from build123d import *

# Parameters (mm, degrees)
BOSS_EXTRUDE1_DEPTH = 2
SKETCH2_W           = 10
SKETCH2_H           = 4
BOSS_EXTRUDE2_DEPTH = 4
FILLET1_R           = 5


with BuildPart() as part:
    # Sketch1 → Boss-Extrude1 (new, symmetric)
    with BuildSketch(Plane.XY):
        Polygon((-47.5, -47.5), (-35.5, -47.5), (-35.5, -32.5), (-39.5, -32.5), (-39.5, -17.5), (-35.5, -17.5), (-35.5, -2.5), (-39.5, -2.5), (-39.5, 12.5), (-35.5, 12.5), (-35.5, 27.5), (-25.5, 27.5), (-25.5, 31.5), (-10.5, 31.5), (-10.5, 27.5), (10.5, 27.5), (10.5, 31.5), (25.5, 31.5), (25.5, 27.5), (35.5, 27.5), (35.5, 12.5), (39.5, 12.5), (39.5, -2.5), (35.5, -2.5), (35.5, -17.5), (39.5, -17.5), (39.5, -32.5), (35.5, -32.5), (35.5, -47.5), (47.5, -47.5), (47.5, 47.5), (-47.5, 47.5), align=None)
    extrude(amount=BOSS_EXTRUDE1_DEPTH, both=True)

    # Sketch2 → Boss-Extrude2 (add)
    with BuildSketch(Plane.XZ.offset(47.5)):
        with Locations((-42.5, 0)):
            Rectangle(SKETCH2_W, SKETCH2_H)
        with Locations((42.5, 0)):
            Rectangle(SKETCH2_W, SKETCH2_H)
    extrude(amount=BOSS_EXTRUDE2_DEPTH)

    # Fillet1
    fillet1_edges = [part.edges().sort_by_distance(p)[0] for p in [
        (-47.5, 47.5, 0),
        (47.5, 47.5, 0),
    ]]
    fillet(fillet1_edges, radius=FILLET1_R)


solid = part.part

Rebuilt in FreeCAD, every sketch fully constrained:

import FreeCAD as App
import Part
import Sketcher
from FreeCAD import Vector


def edges_at(feature, points):
    """Names of the edges that pass closest to the given points."""
    edges = feature.Shape.Edges
    near = lambda p: min(range(len(edges)), key=lambda i: edges[i].distToShape(Part.Vertex(*p))[0])
    return sorted({f"Edge{near(p) + 1}" for p in points})

doc = App.newDocument("Part")
body = doc.addObject("PartDesign::Body", "Body")

sketch1 = body.newObject("Sketcher::SketchObject", "Sketch")
sketch1.AttachmentSupport = (doc.getObject("XY_Plane"), [""])
sketch1.MapMode = "FlatFace"
sketch1.addGeometry([
    Part.LineSegment(Vector(-47.5, -47.5, 0), Vector(-35.5, -47.5, 0)),
    Part.LineSegment(Vector(-35.5, -47.5, 0), Vector(-35.5, -32.5, 0)),
    Part.LineSegment(Vector(-35.5, -32.5, 0), Vector(-39.5, -32.5, 0)),
    Part.LineSegment(Vector(-39.5, -32.5, 0), Vector(-39.5, -17.5, 0)),
    Part.LineSegment(Vector(-39.5, -17.5, 0), Vector(-35.5, -17.5, 0)),
    Part.LineSegment(Vector(-35.5, -17.5, 0), Vector(-35.5, -2.5, 0)),
    Part.LineSegment(Vector(-35.5, -2.5, 0), Vector(-39.5, -2.5, 0)),
    Part.LineSegment(Vector(-39.5, -2.5, 0), Vector(-39.5, 12.5, 0)),
    Part.LineSegment(Vector(-39.5, 12.5, 0), Vector(-35.5, 12.5, 0)),
    Part.LineSegment(Vector(-35.5, 12.5, 0), Vector(-35.5, 27.5, 0)),
    Part.LineSegment(Vector(-35.5, 27.5, 0), Vector(-25.5, 27.5, 0)),
    Part.LineSegment(Vector(-25.5, 27.5, 0), Vector(-25.5, 31.5, 0)),
    Part.LineSegment(Vector(-25.5, 31.5, 0), Vector(-10.5, 31.5, 0)),
    Part.LineSegment(Vector(-10.5, 31.5, 0), Vector(-10.5, 27.5, 0)),
    Part.LineSegment(Vector(-10.5, 27.5, 0), Vector(10.5, 27.5, 0)),
    Part.LineSegment(Vector(10.5, 27.5, 0), Vector(10.5, 31.5, 0)),
    Part.LineSegment(Vector(10.5, 31.5, 0), Vector(25.5, 31.5, 0)),
    Part.LineSegment(Vector(25.5, 31.5, 0), Vector(25.5, 27.5, 0)),
    Part.LineSegment(Vector(25.5, 27.5, 0), Vector(35.5, 27.5, 0)),
    Part.LineSegment(Vector(35.5, 27.5, 0), Vector(35.5, 12.5, 0)),
    Part.LineSegment(Vector(35.5, 12.5, 0), Vector(39.5, 12.5, 0)),
    Part.LineSegment(Vector(39.5, 12.5, 0), Vector(39.5, -2.5, 0)),
    Part.LineSegment(Vector(39.5, -2.5, 0), Vector(35.5, -2.5, 0)),
    Part.LineSegment(Vector(35.5, -2.5, 0), Vector(35.5, -17.5, 0)),
    Part.LineSegment(Vector(35.5, -17.5, 0), Vector(39.5, -17.5, 0)),
    Part.LineSegment(Vector(39.5, -17.5, 0), Vector(39.5, -32.5, 0)),
    Part.LineSegment(Vector(39.5, -32.5, 0), Vector(35.5, -32.5, 0)),
    Part.LineSegment(Vector(35.5, -32.5, 0), Vector(35.5, -47.5, 0)),
    Part.LineSegment(Vector(35.5, -47.5, 0), Vector(47.5, -47.5, 0)),
    Part.LineSegment(Vector(47.5, -47.5, 0), Vector(47.5, 47.5, 0)),
    Part.LineSegment(Vector(47.5, 47.5, 0), Vector(-47.5, 47.5, 0)),
    Part.LineSegment(Vector(-47.5, 47.5, 0), Vector(-47.5, -47.5, 0)),
], False)
sketch1.addConstraint([
    Sketcher.Constraint("Coincident", 0, 2, 1, 1),
    Sketcher.Constraint("Coincident", 1, 2, 2, 1),
    Sketcher.Constraint("Coincident", 2, 2, 3, 1),
    Sketcher.Constraint("Coincident", 3, 2, 4, 1),
    Sketcher.Constraint("Coincident", 4, 2, 5, 1),
    Sketcher.Constraint("Coincident", 5, 2, 6, 1),
    Sketcher.Constraint("Coincident", 6, 2, 7, 1),
    Sketcher.Constraint("Coincident", 7, 2, 8, 1),
    Sketcher.Constraint("Coincident", 8, 2, 9, 1),
    Sketcher.Constraint("Coincident", 9, 2, 10, 1),
    Sketcher.Constraint("Coincident", 10, 2, 11, 1),
    Sketcher.Constraint("Coincident", 11, 2, 12, 1),
    Sketcher.Constraint("Coincident", 12, 2, 13, 1),
    Sketcher.Constraint("Coincident", 13, 2, 14, 1),
    Sketcher.Constraint("Coincident", 14, 2, 15, 1),
    Sketcher.Constraint("Coincident", 15, 2, 16, 1),
    Sketcher.Constraint("Coincident", 16, 2, 17, 1),
    Sketcher.Constraint("Coincident", 17, 2, 18, 1),
    Sketcher.Constraint("Coincident", 18, 2, 19, 1),
    Sketcher.Constraint("Coincident", 19, 2, 20, 1),
    Sketcher.Constraint("Coincident", 20, 2, 21, 1),
    Sketcher.Constraint("Coincident", 21, 2, 22, 1),
    Sketcher.Constraint("Coincident", 22, 2, 23, 1),
    Sketcher.Constraint("Coincident", 23, 2, 24, 1),
    Sketcher.Constraint("Coincident", 24, 2, 25, 1),
    Sketcher.Constraint("Coincident", 25, 2, 26, 1),
    Sketcher.Constraint("Coincident", 26, 2, 27, 1),
    Sketcher.Constraint("Coincident", 27, 2, 28, 1),
    Sketcher.Constraint("Coincident", 28, 2, 29, 1),
    Sketcher.Constraint("Coincident", 29, 2, 30, 1),
    Sketcher.Constraint("Coincident", 30, 2, 31, 1),
    Sketcher.Constraint("Coincident", 31, 2, 0, 1),
    Sketcher.Constraint("Horizontal", 0),
    Sketcher.Constraint("Vertical", 1),
    Sketcher.Constraint("Horizontal", 2),
    Sketcher.Constraint("Vertical", 3),
    Sketcher.Constraint("Horizontal", 4),
    Sketcher.Constraint("Vertical", 5),
    Sketcher.Constraint("Horizontal", 6),
    Sketcher.Constraint("Vertical", 7),
    Sketcher.Constraint("Horizontal", 8),
    Sketcher.Constraint("Vertical", 9),
    Sketcher.Constraint("Horizontal", 10),
    Sketcher.Constraint("Vertical", 11),
    Sketcher.Constraint("Horizontal", 12),
    Sketcher.Constraint("Vertical", 13),
    Sketcher.Constraint("Horizontal", 14),
    Sketcher.Constraint("Vertical", 15),
    Sketcher.Constraint("Horizontal", 16),
    Sketcher.Constraint("Vertical", 17),
    Sketcher.Constraint("Horizontal", 18),
    Sketcher.Constraint("Vertical", 19),
    Sketcher.Constraint("Horizontal", 20),
    Sketcher.Constraint("Vertical", 21),
    Sketcher.Constraint("Horizontal", 22),
    Sketcher.Constraint("Vertical", 23),
    Sketcher.Constraint("Horizontal", 24),
    Sketcher.Constraint("Vertical", 25),
    Sketcher.Constraint("Horizontal", 26),
    Sketcher.Constraint("Vertical", 27),
    Sketcher.Constraint("Horizontal", 28),
    Sketcher.Constraint("Vertical", 29),
    Sketcher.Constraint("Horizontal", 30),
    Sketcher.Constraint("Vertical", 31),
    Sketcher.Constraint("Symmetric", 28, 2, 30, 2, -1, 1),
    Sketcher.Constraint("Symmetric", 12, 2, 15, 2, -2),
    Sketcher.Constraint("Symmetric", 10, 2, 17, 2, -2),
    Sketcher.Constraint("Symmetric", 8, 2, 19, 2, -2),
    Sketcher.Constraint("Symmetric", 6, 2, 21, 2, -2),
    Sketcher.Constraint("Symmetric", 4, 2, 23, 2, -2),
    Sketcher.Constraint("Symmetric", 2, 2, 25, 2, -2),
    Sketcher.Constraint("Symmetric", 0, 2, 27, 2, -2),
    Sketcher.Constraint("Horizontal", 10, 2, 13, 2),
    Sketcher.Constraint("Vertical", 1, 2, 4, 2),
    Sketcher.Constraint("Vertical", 3, 2, 6, 2),
    Sketcher.Constraint("Vertical", 5, 2, 8, 2),
    Sketcher.Constraint("Equal", 16, 1),
    Sketcher.Constraint("Equal", 1, 3),
    Sketcher.Constraint("Equal", 3, 5),
    Sketcher.Constraint("Equal", 5, 7),
    Sketcher.Constraint("Equal", 7, 9),
    Sketcher.Constraint("Equal", 26, 11),
    Sketcher.Constraint("Equal", 30, 29),
    Sketcher.Constraint("DistanceX", 0, 1, 0, 2, 12.0),
    Sketcher.Constraint("DistanceX", 2, 2, 2, 1, 4.0),
    Sketcher.Constraint("DistanceX", 10, 1, 10, 2, 10.0),
    Sketcher.Constraint("DistanceX", 12, 1, 12, 2, 15.0),
    Sketcher.Constraint("DistanceX", 14, 1, 14, 2, 21.0),
])
pad1 = body.newObject("PartDesign::Pad", "Pad")
pad1.Profile = sketch1
pad1.Length = 4
pad1.Midplane = True

sketch2 = body.newObject("Sketcher::SketchObject", "Sketch001")
sketch2.AttachmentSupport = (doc.getObject("XZ_Plane"), [""])
sketch2.MapMode = "FlatFace"
sketch2.AttachmentOffset = App.Placement(Vector(0, 0, 47.5), App.Rotation())
sketch2.addGeometry([
    Part.LineSegment(Vector(-47.5, 2, 0), Vector(-47.5, -2, 0)),
    Part.LineSegment(Vector(-47.5, -2, 0), Vector(-37.5, -2, 0)),
    Part.LineSegment(Vector(-37.5, -2, 0), Vector(-37.5, 2, 0)),
    Part.LineSegment(Vector(-37.5, 2, 0), Vector(-47.5, 2, 0)),
    Part.LineSegment(Vector(37.5, 2, 0), Vector(37.5, -2, 0)),
    Part.LineSegment(Vector(37.5, -2, 0), Vector(47.5, -2, 0)),
    Part.LineSegment(Vector(47.5, -2, 0), Vector(47.5, 2, 0)),
    Part.LineSegment(Vector(47.5, 2, 0), Vector(37.5, 2, 0)),
], False)
sketch2.addConstraint([
    Sketcher.Constraint("Coincident", 0, 2, 1, 1),
    Sketcher.Constraint("Coincident", 1, 2, 2, 1),
    Sketcher.Constraint("Coincident", 2, 2, 3, 1),
    Sketcher.Constraint("Coincident", 3, 2, 0, 1),
    Sketcher.Constraint("Coincident", 4, 2, 5, 1),
    Sketcher.Constraint("Coincident", 5, 2, 6, 1),
    Sketcher.Constraint("Coincident", 6, 2, 7, 1),
    Sketcher.Constraint("Coincident", 7, 2, 4, 1),
    Sketcher.Constraint("Vertical", 0),
    Sketcher.Constraint("Horizontal", 1),
    Sketcher.Constraint("Vertical", 2),
    Sketcher.Constraint("Horizontal", 3),
    Sketcher.Constraint("Vertical", 4),
    Sketcher.Constraint("Horizontal", 5),
    Sketcher.Constraint("Vertical", 6),
    Sketcher.Constraint("Horizontal", 7),
    Sketcher.Constraint("Symmetric", 2, 2, 4, 2, -1, 1),
    Sketcher.Constraint("Symmetric", 0, 2, 6, 2, -1, 1),
    Sketcher.Constraint("Horizontal", 1, 2, 4, 2),
    Sketcher.Constraint("DistanceX", 1, 1, 1, 2, 10.0),
    Sketcher.Constraint("DistanceY", 0, 2, 0, 1, 4.0),
    Sketcher.Constraint("DistanceX", 1, 2, 4, 2, 75.0),
])
pad2 = body.newObject("PartDesign::Pad", "Pad001")
pad2.Profile = sketch2
pad2.Length = 4
doc.recompute()

fillet = body.newObject("PartDesign::Fillet", "Fillet")
fillet.Base = (pad2, edges_at(pad2, [(-47.5, 47.5, 0), (47.5, 47.5, 0)]))
fillet.Radius = 5

doc.recompute()
